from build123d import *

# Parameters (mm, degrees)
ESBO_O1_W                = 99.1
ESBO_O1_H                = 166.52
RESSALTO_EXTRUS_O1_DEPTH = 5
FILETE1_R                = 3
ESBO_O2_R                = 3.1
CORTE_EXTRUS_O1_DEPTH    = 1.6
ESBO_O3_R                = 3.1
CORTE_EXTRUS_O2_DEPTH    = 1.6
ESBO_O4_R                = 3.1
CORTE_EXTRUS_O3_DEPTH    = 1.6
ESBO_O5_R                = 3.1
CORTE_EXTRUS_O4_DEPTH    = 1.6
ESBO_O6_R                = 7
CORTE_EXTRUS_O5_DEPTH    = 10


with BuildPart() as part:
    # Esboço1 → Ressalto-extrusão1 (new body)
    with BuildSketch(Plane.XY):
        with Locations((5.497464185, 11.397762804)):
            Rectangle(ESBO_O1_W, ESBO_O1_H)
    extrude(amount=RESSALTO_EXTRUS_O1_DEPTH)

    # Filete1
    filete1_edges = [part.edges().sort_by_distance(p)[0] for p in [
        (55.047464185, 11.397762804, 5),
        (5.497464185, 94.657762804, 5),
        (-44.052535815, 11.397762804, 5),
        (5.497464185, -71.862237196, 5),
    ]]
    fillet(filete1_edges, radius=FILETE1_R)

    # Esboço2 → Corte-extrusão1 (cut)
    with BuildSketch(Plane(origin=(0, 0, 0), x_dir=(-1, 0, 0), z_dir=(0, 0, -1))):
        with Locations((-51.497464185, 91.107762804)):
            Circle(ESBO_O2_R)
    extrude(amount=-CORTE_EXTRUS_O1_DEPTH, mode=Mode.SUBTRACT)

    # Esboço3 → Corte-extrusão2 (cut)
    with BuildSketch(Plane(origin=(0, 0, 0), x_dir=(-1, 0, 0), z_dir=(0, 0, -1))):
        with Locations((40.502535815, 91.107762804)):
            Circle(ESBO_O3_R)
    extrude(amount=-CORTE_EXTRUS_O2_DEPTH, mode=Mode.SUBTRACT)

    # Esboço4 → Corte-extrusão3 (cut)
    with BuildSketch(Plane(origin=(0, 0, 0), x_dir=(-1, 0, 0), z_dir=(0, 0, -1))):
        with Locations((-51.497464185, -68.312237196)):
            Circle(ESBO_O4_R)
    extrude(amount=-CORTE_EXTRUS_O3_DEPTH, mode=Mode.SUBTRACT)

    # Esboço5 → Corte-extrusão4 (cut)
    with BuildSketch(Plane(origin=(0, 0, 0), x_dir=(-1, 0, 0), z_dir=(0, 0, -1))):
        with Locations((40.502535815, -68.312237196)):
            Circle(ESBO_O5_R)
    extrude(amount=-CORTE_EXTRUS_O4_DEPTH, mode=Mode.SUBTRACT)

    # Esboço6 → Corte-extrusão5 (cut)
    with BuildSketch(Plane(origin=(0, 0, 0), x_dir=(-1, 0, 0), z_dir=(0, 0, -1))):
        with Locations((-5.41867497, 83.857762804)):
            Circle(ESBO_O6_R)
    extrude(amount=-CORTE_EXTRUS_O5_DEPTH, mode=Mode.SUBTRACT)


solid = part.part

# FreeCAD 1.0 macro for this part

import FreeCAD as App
import Part
import Sketcher
Q = App.Units.Quantity


def edges_at(feature, points):
    """Names of the edges that pass closest to the given points."""
    edges = feature.Shape.Edges
    near = lambda p: min(range(len(edges)), key=lambda i: edges[i].distToShape(Part.Vertex(*p))[0])
    return sorted({f"Edge{near(p) + 1}" for p in points})


def add_polygon(sketch, points):
    """Adds a closed chain of lines whose ends are joined by coincident constraints."""
    first, n = sketch.GeometryCount, len(points)
    for a, b in zip(points, points[1:] + points[:1]):
        sketch.addGeometry(Part.LineSegment(App.Vector(*a, 0), App.Vector(*b, 0)), False)
    for i in range(n):
        sketch.addConstraint(Sketcher.Constraint("Coincident", first + i, 2, first + (i + 1) % n, 1))

doc = App.newDocument("Part")
params = doc.addObject("Spreadsheet::Sheet", "Params")
for row, (alias, value) in enumerate([
    ("sketch1_width", "99.1 mm"),
    ("sketch1_height", "166.52 mm"),
    ("pad1_length", "5 mm"),
    ("fillet_radius", "3 mm"),
    ("sketch2_diameter", "6.2 mm"),
    ("pocket1_length", "1.6 mm"),
    ("sketch3_diameter", "6.2 mm"),
    ("pocket2_length", "1.6 mm"),
    ("sketch4_diameter", "6.2 mm"),
    ("pocket3_length", "1.6 mm"),
    ("sketch5_diameter", "6.2 mm"),
    ("pocket4_length", "1.6 mm"),
    ("sketch6_diameter", "14 mm"),
    ("pocket5_length", "10 mm"),
], start=1):
    params.set(f"A{row}", alias)
    params.set(f"B{row}", "=" + value)
    params.setAlias(f"B{row}", alias)

body = doc.addObject("PartDesign::Body", "Body")

sketch1 = body.newObject("Sketcher::SketchObject", "Sketch")
sketch1.AttachmentSupport = (doc.getObject("XY_Plane"), [""])
sketch1.MapMode = "FlatFace"
add_polygon(sketch1, [(-44.052536, 94.657763), (-44.052536, -71.862237), (55.047464, -71.862237), (55.047464, 94.657763)])
sketch1.addConstraint([
    Sketcher.Constraint("Vertical", 0),
    Sketcher.Constraint("Horizontal", 1),
    Sketcher.Constraint("Vertical", 2),
    Sketcher.Constraint("Horizontal", 3),
    Sketcher.Constraint("DistanceX", 1, 1, 1, 2, Q("99.1 mm")),
    Sketcher.Constraint("DistanceY", 0, 2, 0, 1, Q("166.52 mm")),
    Sketcher.Constraint("DistanceX", 0, 2, -1, 1, Q("44.052536 mm")),
    Sketcher.Constraint("DistanceY", 0, 2, -1, 1, Q("71.862237 mm")),
])
sketch1.setExpression("Constraints[8]", "Params.sketch1_width")
sketch1.setExpression("Constraints[9]", "Params.sketch1_height")
pad1 = body.newObject("PartDesign::Pad", "Pad")
pad1.Profile = sketch1
pad1.setExpression("Length", "Params.pad1_length")
doc.recompute()

fillet = body.newObject("PartDesign::Fillet", "Fillet")
fillet.Base = (pad1, edges_at(pad1, [
    (55.047, 11.398, 5),
    (5.497, 94.658, 5),
    (-44.053, 11.398, 5),
    (5.497, -71.862, 5),
]))
fillet.setExpression("Radius", "Params.fillet_radius")

sketch2 = body.newObject("Sketcher::SketchObject", "Sketch001")
sketch2.AttachmentSupport = (doc.getObject("XY_Plane"), [""])
sketch2.MapMode = "FlatFace"
sketch2.addGeometry(Part.Circle(App.Vector(51.497464, 91.107763, 0), App.Vector(0, 0, 1), 3.1), False)
sketch2.addConstraint([
    Sketcher.Constraint("Diameter", 0, Q("6.2 mm")),
    Sketcher.Constraint("DistanceX", -1, 1, 0, 3, Q("51.497464 mm")),
    Sketcher.Constraint("DistanceY", -1, 1, 0, 3, Q("91.107763 mm")),
])
sketch2.setExpression("Constraints[0]", "Params.sketch2_diameter")
pocket1 = body.newObject("PartDesign::Pocket", "Pocket")
pocket1.Profile = sketch2
pocket1.setExpression("Length", "Params.pocket1_length")
pocket1.Reversed = True

sketch3 = body.newObject("Sketcher::SketchObject", "Sketch002")
sketch3.AttachmentSupport = (doc.getObject("XY_Plane"), [""])
sketch3.MapMode = "FlatFace"
sketch3.addGeometry(Part.Circle(App.Vector(-40.502536, 91.107763, 0), App.Vector(0, 0, 1), 3.1), False)
sketch3.addConstraint([
    Sketcher.Constraint("Diameter", 0, Q("6.2 mm")),
    Sketcher.Constraint("DistanceX", 0, 3, -1, 1, Q("40.502536 mm")),
    Sketcher.Constraint("DistanceY", -1, 1, 0, 3, Q("91.107763 mm")),
])
sketch3.setExpression("Constraints[0]", "Params.sketch3_diameter")
pocket2 = body.newObject("PartDesign::Pocket", "Pocket001")
pocket2.Profile = sketch3
pocket2.setExpression("Length", "Params.pocket2_length")
pocket2.Reversed = True

sketch4 = body.newObject("Sketcher::SketchObject", "Sketch003")
sketch4.AttachmentSupport = (doc.getObject("XY_Plane"), [""])
sketch4.MapMode = "FlatFace"
sketch4.addGeometry(Part.Circle(App.Vector(51.497464, -68.312237, 0), App.Vector(0, 0, 1), 3.1), False)
sketch4.addConstraint([
    Sketcher.Constraint("Diameter", 0, Q("6.2 mm")),
    Sketcher.Constraint("DistanceX", -1, 1, 0, 3, Q("51.497464 mm")),
    Sketcher.Constraint("DistanceY", 0, 3, -1, 1, Q("68.312237 mm")),
])
sketch4.setExpression("Constraints[0]", "Params.sketch4_diameter")
pocket3 = body.newObject("PartDesign::Pocket", "Pocket002")
pocket3.Profile = sketch4
pocket3.setExpression("Length", "Params.pocket3_length")
pocket3.Reversed = True

sketch5 = body.newObject("Sketcher::SketchObject", "Sketch004")
sketch5.AttachmentSupport = (doc.getObject("XY_Plane"), [""])
sketch5.MapMode = "FlatFace"
sketch5.addGeometry(Part.Circle(App.Vector(-40.502536, -68.312237, 0), App.Vector(0, 0, 1), 3.1), False)
sketch5.addConstraint([
    Sketcher.Constraint("Diameter", 0, Q("6.2 mm")),
    Sketcher.Constraint("DistanceX", 0, 3, -1, 1, Q("40.502536 mm")),
    Sketcher.Constraint("DistanceY", 0, 3, -1, 1, Q("68.312237 mm")),
])
sketch5.setExpression("Constraints[0]", "Params.sketch5_diameter")
pocket4 = body.newObject("PartDesign::Pocket", "Pocket003")
pocket4.Profile = sketch5
pocket4.setExpression("Length", "Params.pocket4_length")
pocket4.Reversed = True

sketch6 = body.newObject("Sketcher::SketchObject", "Sketch005")
sketch6.AttachmentSupport = (doc.getObject("XY_Plane"), [""])
sketch6.MapMode = "FlatFace"
sketch6.addGeometry(Part.Circle(App.Vector(5.418675, 83.857763, 0), App.Vector(0, 0, 1), 7), False)
sketch6.addConstraint([
    Sketcher.Constraint("Diameter", 0, Q("14 mm")),
    Sketcher.Constraint("DistanceX", -1, 1, 0, 3, Q("5.418675 mm")),
    Sketcher.Constraint("DistanceY", -1, 1, 0, 3, Q("83.857763 mm")),
])
sketch6.setExpression("Constraints[0]", "Params.sketch6_diameter")
pocket5 = body.newObject("PartDesign::Pocket", "Pocket004")
pocket5.Profile = sketch6
pocket5.setExpression("Length", "Params.pocket5_length")
pocket5.Reversed = True

doc.recompute()
